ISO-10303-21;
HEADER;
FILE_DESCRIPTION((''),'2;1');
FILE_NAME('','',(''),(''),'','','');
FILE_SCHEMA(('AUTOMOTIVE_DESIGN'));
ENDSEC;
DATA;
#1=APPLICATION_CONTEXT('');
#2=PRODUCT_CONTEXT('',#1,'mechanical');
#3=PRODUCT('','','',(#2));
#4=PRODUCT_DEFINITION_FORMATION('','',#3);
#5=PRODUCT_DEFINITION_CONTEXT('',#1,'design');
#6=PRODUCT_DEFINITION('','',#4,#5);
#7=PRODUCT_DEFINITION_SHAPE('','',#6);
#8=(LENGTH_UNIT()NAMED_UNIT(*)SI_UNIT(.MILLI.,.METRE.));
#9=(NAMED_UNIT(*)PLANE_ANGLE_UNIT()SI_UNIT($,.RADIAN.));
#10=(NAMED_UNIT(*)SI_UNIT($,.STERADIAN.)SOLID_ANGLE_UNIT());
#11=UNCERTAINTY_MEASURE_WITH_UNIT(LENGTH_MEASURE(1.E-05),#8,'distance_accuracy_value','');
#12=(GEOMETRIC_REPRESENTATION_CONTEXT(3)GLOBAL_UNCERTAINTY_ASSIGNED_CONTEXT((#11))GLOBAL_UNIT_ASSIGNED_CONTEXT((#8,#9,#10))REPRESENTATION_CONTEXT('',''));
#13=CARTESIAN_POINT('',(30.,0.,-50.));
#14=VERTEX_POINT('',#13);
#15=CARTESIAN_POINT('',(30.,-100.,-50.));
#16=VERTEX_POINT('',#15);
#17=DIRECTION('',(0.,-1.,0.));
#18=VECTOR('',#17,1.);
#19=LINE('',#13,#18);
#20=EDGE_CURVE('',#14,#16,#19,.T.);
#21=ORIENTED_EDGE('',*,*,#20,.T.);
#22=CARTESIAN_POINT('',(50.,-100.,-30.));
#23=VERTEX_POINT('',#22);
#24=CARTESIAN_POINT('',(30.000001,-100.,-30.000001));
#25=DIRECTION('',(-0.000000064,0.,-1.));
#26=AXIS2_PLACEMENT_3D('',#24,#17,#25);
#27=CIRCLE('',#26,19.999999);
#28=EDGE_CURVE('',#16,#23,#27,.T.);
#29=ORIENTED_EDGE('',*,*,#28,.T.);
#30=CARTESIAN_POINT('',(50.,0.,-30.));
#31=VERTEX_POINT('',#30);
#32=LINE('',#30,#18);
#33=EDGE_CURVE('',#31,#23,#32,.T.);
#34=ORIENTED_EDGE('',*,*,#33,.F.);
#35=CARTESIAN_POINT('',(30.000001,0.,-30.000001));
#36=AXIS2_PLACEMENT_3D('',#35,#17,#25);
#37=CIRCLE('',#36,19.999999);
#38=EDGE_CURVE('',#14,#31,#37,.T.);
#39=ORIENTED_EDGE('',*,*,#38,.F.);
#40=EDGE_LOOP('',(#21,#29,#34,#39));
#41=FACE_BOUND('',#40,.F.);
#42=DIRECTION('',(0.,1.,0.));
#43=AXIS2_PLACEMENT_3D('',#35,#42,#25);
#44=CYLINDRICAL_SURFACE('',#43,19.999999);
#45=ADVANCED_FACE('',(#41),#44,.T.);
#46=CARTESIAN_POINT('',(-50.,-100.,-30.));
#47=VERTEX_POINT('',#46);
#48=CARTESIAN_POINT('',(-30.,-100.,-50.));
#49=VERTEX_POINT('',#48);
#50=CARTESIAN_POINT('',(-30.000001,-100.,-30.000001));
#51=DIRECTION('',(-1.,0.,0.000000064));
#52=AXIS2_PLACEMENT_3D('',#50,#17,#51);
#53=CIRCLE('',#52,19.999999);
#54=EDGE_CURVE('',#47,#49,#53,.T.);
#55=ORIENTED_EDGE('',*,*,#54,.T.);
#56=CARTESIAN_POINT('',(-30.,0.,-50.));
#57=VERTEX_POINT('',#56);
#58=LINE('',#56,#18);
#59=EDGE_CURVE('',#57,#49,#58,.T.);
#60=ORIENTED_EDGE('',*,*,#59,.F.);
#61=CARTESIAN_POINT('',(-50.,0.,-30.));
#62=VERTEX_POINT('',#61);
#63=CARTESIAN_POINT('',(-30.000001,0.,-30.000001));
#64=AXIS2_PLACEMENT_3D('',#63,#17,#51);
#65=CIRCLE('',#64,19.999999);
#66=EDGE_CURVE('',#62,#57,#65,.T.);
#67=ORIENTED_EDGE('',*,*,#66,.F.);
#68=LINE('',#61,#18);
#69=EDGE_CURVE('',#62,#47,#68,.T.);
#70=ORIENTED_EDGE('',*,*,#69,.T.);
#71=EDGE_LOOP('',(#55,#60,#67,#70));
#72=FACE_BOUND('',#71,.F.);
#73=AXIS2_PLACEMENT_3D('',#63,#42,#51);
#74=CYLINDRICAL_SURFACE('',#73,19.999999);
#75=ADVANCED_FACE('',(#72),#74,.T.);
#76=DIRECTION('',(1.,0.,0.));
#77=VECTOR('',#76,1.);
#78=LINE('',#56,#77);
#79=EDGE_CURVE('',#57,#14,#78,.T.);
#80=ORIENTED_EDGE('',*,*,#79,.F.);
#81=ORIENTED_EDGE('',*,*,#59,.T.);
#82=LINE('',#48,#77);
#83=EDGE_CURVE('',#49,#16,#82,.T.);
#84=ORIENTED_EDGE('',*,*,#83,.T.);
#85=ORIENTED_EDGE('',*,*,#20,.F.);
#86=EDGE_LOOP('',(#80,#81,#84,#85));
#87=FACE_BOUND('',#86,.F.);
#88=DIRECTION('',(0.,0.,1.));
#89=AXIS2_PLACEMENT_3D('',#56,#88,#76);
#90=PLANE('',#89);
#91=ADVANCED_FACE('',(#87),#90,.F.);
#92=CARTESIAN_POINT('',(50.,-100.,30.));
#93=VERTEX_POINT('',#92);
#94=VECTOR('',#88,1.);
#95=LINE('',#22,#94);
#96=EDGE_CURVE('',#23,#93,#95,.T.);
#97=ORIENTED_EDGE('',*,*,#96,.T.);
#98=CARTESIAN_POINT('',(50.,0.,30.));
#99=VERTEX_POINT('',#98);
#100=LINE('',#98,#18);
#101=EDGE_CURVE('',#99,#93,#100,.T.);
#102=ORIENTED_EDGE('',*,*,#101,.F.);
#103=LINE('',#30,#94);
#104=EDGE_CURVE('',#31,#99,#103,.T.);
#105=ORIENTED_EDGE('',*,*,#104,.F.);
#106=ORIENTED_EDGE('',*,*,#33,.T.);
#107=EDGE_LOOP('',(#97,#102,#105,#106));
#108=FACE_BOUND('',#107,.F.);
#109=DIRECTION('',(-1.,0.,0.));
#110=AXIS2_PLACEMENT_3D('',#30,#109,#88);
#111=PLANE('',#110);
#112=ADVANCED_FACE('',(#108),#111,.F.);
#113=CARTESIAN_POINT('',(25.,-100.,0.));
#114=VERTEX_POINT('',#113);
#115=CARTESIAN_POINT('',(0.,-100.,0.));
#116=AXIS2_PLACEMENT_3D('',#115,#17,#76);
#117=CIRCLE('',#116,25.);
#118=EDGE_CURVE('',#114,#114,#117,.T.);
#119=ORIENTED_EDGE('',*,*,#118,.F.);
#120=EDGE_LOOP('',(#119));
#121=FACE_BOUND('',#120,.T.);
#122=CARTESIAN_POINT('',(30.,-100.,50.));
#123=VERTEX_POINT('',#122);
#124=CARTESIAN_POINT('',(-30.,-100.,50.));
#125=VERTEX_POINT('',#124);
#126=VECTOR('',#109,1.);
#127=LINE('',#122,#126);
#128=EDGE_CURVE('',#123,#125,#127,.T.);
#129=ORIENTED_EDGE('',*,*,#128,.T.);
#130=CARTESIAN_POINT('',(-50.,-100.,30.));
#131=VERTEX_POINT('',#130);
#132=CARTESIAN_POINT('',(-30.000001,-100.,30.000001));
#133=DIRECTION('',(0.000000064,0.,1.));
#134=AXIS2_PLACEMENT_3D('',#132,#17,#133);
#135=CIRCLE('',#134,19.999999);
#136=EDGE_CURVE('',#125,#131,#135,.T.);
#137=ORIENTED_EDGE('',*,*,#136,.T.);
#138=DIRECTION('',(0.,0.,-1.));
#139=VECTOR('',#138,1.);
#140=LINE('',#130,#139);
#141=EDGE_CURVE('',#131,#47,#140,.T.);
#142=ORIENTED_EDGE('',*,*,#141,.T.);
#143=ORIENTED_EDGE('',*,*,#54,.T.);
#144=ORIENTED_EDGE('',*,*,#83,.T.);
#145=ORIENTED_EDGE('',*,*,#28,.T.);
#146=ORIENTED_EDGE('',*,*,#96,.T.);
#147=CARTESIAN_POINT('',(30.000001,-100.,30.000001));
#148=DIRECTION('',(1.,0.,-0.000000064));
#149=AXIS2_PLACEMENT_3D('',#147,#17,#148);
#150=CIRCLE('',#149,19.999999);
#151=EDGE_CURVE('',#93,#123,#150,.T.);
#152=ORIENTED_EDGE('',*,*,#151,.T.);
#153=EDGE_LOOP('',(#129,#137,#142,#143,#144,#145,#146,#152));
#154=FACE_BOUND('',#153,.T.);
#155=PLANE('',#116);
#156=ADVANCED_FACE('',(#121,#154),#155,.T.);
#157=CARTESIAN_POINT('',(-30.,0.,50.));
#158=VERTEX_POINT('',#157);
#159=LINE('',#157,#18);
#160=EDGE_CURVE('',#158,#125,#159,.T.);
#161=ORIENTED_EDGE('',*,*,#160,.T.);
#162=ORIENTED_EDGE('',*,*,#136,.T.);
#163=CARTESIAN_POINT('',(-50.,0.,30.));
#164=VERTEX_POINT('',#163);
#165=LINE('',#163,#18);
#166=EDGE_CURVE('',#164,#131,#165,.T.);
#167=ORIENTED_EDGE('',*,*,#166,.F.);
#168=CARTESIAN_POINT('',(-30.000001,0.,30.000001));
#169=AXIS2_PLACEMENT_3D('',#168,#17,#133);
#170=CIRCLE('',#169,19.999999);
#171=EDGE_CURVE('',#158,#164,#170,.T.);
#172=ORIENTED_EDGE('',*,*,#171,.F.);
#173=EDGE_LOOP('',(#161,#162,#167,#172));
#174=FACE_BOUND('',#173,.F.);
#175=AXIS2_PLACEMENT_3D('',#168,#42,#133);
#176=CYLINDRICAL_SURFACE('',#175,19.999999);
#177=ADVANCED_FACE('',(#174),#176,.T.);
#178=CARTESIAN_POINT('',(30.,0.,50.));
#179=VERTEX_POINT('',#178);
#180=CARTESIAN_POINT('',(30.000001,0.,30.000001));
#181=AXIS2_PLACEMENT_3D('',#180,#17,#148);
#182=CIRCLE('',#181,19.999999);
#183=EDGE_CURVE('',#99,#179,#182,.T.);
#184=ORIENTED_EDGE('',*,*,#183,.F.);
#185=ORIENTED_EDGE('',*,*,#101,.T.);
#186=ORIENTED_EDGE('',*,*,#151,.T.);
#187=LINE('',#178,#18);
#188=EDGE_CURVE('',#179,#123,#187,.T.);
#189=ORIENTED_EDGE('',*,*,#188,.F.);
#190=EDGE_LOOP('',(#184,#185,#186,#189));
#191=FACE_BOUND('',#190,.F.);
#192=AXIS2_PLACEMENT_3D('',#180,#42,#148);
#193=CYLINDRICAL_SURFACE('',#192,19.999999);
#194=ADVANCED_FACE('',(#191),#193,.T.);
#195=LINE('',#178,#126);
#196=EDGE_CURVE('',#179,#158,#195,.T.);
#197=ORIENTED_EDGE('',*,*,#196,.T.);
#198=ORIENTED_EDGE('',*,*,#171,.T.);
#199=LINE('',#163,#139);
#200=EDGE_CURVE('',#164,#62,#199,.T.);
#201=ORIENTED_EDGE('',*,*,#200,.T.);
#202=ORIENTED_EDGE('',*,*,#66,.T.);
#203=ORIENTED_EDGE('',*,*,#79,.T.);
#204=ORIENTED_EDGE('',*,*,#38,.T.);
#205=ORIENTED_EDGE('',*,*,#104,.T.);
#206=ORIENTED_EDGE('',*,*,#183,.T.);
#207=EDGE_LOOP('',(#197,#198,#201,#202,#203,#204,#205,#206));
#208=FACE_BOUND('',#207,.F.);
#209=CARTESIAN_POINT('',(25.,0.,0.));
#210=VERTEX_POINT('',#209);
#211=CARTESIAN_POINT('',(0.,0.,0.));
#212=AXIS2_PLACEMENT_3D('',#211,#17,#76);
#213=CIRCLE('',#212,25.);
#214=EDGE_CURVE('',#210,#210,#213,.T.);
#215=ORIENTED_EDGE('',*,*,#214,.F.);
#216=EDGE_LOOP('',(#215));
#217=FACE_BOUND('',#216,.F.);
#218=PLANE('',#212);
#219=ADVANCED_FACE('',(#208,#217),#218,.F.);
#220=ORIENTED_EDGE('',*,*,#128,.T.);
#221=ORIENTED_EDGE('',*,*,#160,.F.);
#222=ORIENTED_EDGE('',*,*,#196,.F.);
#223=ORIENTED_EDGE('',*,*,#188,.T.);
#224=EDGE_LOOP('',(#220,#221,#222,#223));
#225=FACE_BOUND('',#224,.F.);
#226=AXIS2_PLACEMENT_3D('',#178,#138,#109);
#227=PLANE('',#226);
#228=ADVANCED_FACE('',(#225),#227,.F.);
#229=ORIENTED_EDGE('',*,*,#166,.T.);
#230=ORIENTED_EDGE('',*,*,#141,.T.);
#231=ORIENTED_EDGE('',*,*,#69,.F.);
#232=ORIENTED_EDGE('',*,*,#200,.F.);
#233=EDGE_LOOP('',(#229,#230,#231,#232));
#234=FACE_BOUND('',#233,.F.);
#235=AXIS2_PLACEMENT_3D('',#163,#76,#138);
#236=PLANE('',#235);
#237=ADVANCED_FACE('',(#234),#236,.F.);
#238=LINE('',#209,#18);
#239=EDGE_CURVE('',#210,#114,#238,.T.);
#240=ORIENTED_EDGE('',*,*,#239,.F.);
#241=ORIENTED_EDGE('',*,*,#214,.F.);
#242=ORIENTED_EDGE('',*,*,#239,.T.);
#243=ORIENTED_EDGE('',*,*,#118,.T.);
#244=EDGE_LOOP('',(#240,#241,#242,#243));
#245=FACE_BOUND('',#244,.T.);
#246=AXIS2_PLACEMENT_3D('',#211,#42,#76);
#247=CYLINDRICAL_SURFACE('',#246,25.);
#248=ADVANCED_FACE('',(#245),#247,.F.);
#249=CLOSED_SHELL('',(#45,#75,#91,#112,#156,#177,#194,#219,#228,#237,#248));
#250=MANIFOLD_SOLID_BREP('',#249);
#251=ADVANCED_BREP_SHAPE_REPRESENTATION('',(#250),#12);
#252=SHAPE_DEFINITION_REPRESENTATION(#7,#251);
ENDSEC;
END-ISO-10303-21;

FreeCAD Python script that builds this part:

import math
import FreeCAD as App
import Part
import Sketcher
from FreeCAD import Vector

doc = App.newDocument("Part")
body = doc.addObject("PartDesign::Body", "Body")

sketch1 = body.newObject("Sketcher::SketchObject", "Sketch")
sketch1.AttachmentSupport = (doc.getObject("XZ_Plane"), [""])
sketch1.MapMode = "FlatFace"
sketch1.addGeometry(Part.ArcOfCircle(Part.Circle(Vector(-30.000001, -30.000001, 0), Vector(0, 0, 1), 19.999999), math.radians(179.999996), math.radians(270.000004)), False)
sketch1.addGeometry(Part.LineSegment(Vector(-30, -50, 0), Vector(30, -50, 0)), False)
sketch1.addGeometry(Part.ArcOfCircle(Part.Circle(Vector(30.000001, -30.000001, 0), Vector(0, 0, 1), 19.999999), math.radians(-90.000004), math.radians(0.000004)), False)
sketch1.addGeometry(Part.LineSegment(Vector(50, -30, 0), Vector(50, 30, 0)), False)
sketch1.addGeometry(Part.ArcOfCircle(Part.Circle(Vector(30.000001, 30.000001, 0), Vector(0, 0, 1), 19.999999), math.radians(-0.000004), math.radians(90.000004)), False)
sketch1.addGeometry(Part.LineSegment(Vector(30, 50, 0), Vector(-30, 50, 0)), False)
sketch1.addGeometry(Part.ArcOfCircle(Part.Circle(Vector(-30.000001, 30.000001, 0), Vector(0, 0, 1), 19.999999), math.radians(89.999996), math.radians(180.000004)), False)
sketch1.addGeometry(Part.LineSegment(Vector(-50, 30, 0), Vector(-50, -30, 0)), False)
sketch1.addGeometry(Part.Circle(Vector(0, 0, 0), Vector(0, 0, 1), 25), False)
sketch1.addConstraint(Sketcher.Constraint("Tangent", 0, 2, 1, 1))
sketch1.addConstraint(Sketcher.Constraint("Tangent", 1, 2, 2, 1))
sketch1.addConstraint(Sketcher.Constraint("Tangent", 2, 2, 3, 1))
sketch1.addConstraint(Sketcher.Constraint("Tangent", 3, 2, 4, 1))
sketch1.addConstraint(Sketcher.Constraint("Tangent", 4, 2, 5, 1))
sketch1.addConstraint(Sketcher.Constraint("Tangent", 5, 2, 6, 1))
sketch1.addConstraint(Sketcher.Constraint("Tangent", 6, 2, 7, 1))
sketch1.addConstraint(Sketcher.Constraint("Tangent", 7, 2, 0, 1))
sketch1.addConstraint(Sketcher.Constraint("Horizontal", 1))
sketch1.addConstraint(Sketcher.Constraint("Vertical", 3))
sketch1.addConstraint(Sketcher.Constraint("Horizontal", 5))
sketch1.addConstraint(Sketcher.Constraint("Vertical", 7))
sketch1.addConstraint(Sketcher.Constraint("Coincident", 8, 3, -1, 1))
sketch1.addConstraint(Sketcher.Constraint("Equal", 0, 2))
sketch1.addConstraint(Sketcher.Constraint("Equal", 2, 4))
sketch1.addConstraint(Sketcher.Constraint("Equal", 4, 6))
sketch1.addConstraint(Sketcher.Constraint("Symmetric", 0, 3, 4, 3, -1, 1))
sketch1.addConstraint(Sketcher.Constraint("Equal", 5, 3))
sketch1.addConstraint(Sketcher.Constraint("Diameter", 8, 50.0))
sketch1.addConstraint(Sketcher.Constraint("Radius", 0, 19.999999))
sketch1.addConstraint(Sketcher.Constraint("DistanceX", 1, 1, 1, 2, 60.0))
pad1 = body.newObject("PartDesign::Pad", "Pad")
pad1.Profile = sketch1
pad1.Length = 100

doc.recompute()
